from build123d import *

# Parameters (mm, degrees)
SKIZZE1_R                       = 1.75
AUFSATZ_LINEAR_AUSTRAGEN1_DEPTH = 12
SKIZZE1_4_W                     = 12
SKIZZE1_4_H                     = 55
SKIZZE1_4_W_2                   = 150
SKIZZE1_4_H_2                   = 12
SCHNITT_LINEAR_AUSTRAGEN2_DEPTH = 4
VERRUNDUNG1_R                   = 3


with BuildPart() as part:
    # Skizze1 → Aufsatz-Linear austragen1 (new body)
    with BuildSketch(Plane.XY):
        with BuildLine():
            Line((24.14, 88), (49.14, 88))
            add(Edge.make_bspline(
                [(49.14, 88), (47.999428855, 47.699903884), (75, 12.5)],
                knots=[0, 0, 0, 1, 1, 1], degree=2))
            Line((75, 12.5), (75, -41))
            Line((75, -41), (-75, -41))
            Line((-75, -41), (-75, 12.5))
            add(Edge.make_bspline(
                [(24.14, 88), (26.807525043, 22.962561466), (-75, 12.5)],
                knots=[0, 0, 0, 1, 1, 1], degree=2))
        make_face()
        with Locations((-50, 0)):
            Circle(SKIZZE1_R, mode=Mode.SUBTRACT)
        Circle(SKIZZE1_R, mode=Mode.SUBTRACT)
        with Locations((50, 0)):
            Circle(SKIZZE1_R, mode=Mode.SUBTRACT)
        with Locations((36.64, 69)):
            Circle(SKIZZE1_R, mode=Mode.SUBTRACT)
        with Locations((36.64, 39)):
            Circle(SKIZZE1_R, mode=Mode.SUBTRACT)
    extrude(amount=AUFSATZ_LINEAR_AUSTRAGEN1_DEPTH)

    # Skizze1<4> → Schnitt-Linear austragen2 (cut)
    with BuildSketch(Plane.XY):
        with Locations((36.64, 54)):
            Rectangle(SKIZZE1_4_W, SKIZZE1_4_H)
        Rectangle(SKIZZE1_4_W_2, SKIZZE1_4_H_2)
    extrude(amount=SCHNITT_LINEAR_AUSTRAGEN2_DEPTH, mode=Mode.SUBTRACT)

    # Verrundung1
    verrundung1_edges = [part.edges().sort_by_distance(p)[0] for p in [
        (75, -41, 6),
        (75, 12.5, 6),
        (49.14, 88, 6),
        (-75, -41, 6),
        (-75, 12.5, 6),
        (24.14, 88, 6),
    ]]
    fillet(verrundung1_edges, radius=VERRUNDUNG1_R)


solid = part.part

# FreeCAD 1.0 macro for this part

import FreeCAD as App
import Part
import Sketcher
from FreeCAD import Vector
Q = App.Units.Quantity


def edges_at(feature, points):
    """Names of the edges that pass closest to the given points."""
    edges = feature.Shape.Edges
    near = lambda p: min(range(len(edges)), key=lambda i: edges[i].distToShape(Part.Vertex(*p))[0])
    return sorted({f"Edge{near(p) + 1}" for p in points})

doc = App.newDocument("Part")
body = doc.addObject("PartDesign::Body", "Body")

# Sketch on XY plane
sketch1 = body.newObject("Sketcher::SketchObject", "Sketch")
sketch1.AttachmentSupport = (doc.getObject("XY_Plane"), [""])
sketch1.MapMode = "FlatFace"
sketch1.addGeometry(Part.LineSegment(Vector(49.14, 88, 0), Vector(24.14, 88, 0)), False)
sketch1.addGeometry(Part.BSplineCurve([Vector(24.14, 88, 0), Vector(26.807525, 22.962561, 0), Vector(-75, 12.5, 0)], [3, 3], [0, 1], False, 2, [1, 1, 1], False), False)
sketch1.addGeometry(Part.LineSegment(Vector(-75, 12.5, 0), Vector(-75, -41, 0)), False)
sketch1.addGeometry(Part.LineSegment(Vector(-75, -41, 0), Vector(75, -41, 0)), False)
sketch1.addGeometry(Part.LineSegment(Vector(75, -41, 0), Vector(75, 12.5, 0)), False)
sketch1.addGeometry(Part.BSplineCurve([Vector(49.14, 88, 0), Vector(47.999429, 47.699904, 0), Vector(75, 12.5, 0)], [3, 3], [0, 1], False, 2, [1, 1, 1], False), False)
sketch1.addGeometry(Part.Circle(Vector(50, 0, 0), Vector(0, 0, 1), 1.75), False)
sketch1.addGeometry(Part.Circle(Vector(0, 0, 0), Vector(0, 0, 1), 1.75), False)
sketch1.addGeometry(Part.Circle(Vector(-50, 0, 0), Vector(0, 0, 1), 1.75), False)
sketch1.addGeometry(Part.Circle(Vector(36.64, 39, 0), Vector(0, 0, 1), 1.75), False)
sketch1.addGeometry(Part.Circle(Vector(36.64, 69, 0), Vector(0, 0, 1), 1.75), False)
sketch1.addConstraint(Sketcher.Constraint("Block", 1))
sketch1.addConstraint(Sketcher.Constraint("Block", 5))
sketch1.addConstraint(Sketcher.Constraint("Coincident", 0, 2, 1, 1))
sketch1.addConstraint(Sketcher.Constraint("Coincident", 1, 2, 2, 1))
sketch1.addConstraint(Sketcher.Constraint("Coincident", 2, 2, 3, 1))
sketch1.addConstraint(Sketcher.Constraint("Coincident", 3, 2, 4, 1))
sketch1.addConstraint(Sketcher.Constraint("Coincident", 4, 2, 5, 2))
sketch1.addConstraint(Sketcher.Constraint("Coincident", 5, 1, 0, 1))
sketch1.addConstraint(Sketcher.Constraint("Vertical", 2))
sketch1.addConstraint(Sketcher.Constraint("Horizontal", 3))
sketch1.addConstraint(Sketcher.Constraint("Vertical", 4))
sketch1.addConstraint(Sketcher.Constraint("Coincident", 7, 3, -1, 1))
sketch1.addConstraint(Sketcher.Constraint("Equal", 6, 7))
sketch1.addConstraint(Sketcher.Constraint("Equal", 7, 8))
sketch1.addConstraint(Sketcher.Constraint("Equal", 8, 9))
sketch1.addConstraint(Sketcher.Constraint("Equal", 9, 10))
sketch1.addConstraint(Sketcher.Constraint("Symmetric", 6, 3, 8, 3, -1, 1))
sketch1.addConstraint(Sketcher.Constraint("PointOnObject", 6, 3, -1))
sketch1.addConstraint(Sketcher.Constraint("Vertical", 9, 3, 10, 3))
sketch1.addConstraint(Sketcher.Constraint("Diameter", 6, Q("3.5 mm")))
sketch1.addConstraint(Sketcher.Constraint("DistanceY", 2, 2, 2, 1, Q("53.5 mm")))
sketch1.addConstraint(Sketcher.Constraint("DistanceX", -1, 1, 6, 3, Q("50 mm")))
sketch1.addConstraint(Sketcher.Constraint("DistanceY", -1, 1, 9, 3, Q("39 mm")))
sketch1.addConstraint(Sketcher.Constraint("DistanceY", -1, 1, 10, 3, Q("69 mm")))
sketch1.addConstraint(Sketcher.Constraint("DistanceX", 0, 2, 10, 3, Q("12.5 mm")))
pad1 = body.newObject("PartDesign::Pad", "Pad")
pad1.Profile = sketch1
pad1.Length = 12

# Sketch on XY plane
sketch2 = body.newObject("Sketcher::SketchObject", "Sketch001")
sketch2.AttachmentSupport = (doc.getObject("XY_Plane"), [""])
sketch2.MapMode = "FlatFace"
sketch2.addGeometry(Part.LineSegment(Vector(31, 82, 0), Vector(31, 26, 0)), False)
sketch2.addGeometry(Part.LineSegment(Vector(31, 26, 0), Vector(43, 26, 0)), False)
sketch2.addGeometry(Part.LineSegment(Vector(43, 26, 0), Vector(43, 82, 0)), False)
sketch2.addGeometry(Part.LineSegment(Vector(43, 82, 0), Vector(31, 82, 0)), False)
sketch2.addGeometry(Part.LineSegment(Vector(-75, 6, 0), Vector(-75, -6, 0)), False)
sketch2.addGeometry(Part.LineSegment(Vector(-75, -6, 0), Vector(75, -6, 0)), False)
sketch2.addGeometry(Part.LineSegment(Vector(75, -6, 0), Vector(75, 6, 0)), False)
sketch2.addGeometry(Part.LineSegment(Vector(75, 6, 0), Vector(-75, 6, 0)), False)
sketch2.addConstraint(Sketcher.Constraint("Coincident", 0, 2, 1, 1))
sketch2.addConstraint(Sketcher.Constraint("Coincident", 1, 2, 2, 1))
sketch2.addConstraint(Sketcher.Constraint("Coincident", 2, 2, 3, 1))
sketch2.addConstraint(Sketcher.Constraint("Coincident", 3, 2, 0, 1))
sketch2.addConstraint(Sketcher.Constraint("Coincident", 4, 2, 5, 1))
sketch2.addConstraint(Sketcher.Constraint("Coincident", 5, 2, 6, 1))
sketch2.addConstraint(Sketcher.Constraint("Coincident", 6, 2, 7, 1))
sketch2.addConstraint(Sketcher.Constraint("Coincident", 7, 2, 4, 1))
sketch2.addConstraint(Sketcher.Constraint("Vertical", 0))
sketch2.addConstraint(Sketcher.Constraint("Horizontal", 1))
sketch2.addConstraint(Sketcher.Constraint("Vertical", 2))
sketch2.addConstraint(Sketcher.Constraint("Horizontal", 3))
sketch2.addConstraint(Sketcher.Constraint("Vertical", 4))
sketch2.addConstraint(Sketcher.Constraint("Horizontal", 5))
sketch2.addConstraint(Sketcher.Constraint("Vertical", 6))
sketch2.addConstraint(Sketcher.Constraint("Horizontal", 7))
sketch2.addConstraint(Sketcher.Constraint("Symmetric", 4, 2, 6, 2, -1, 1))
sketch2.addConstraint(Sketcher.Constraint("Equal", 3, 4))
sketch2.addConstraint(Sketcher.Constraint("DistanceX", 1, 1, 1, 2, Q("12 mm")))
sketch2.addConstraint(Sketcher.Constraint("DistanceX", 5, 1, 5, 2, Q("150 mm")))
sketch2.addConstraint(Sketcher.Constraint("DistanceY", 0, 2, 0, 1, Q("55 mm")))
sketch2.addConstraint(Sketcher.Constraint("DistanceY", -1, 1, 0, 2, Q("26.5 mm")))
sketch2.addConstraint(Sketcher.Constraint("DistanceX", -1, 1, 0, 2, Q("30.64 mm")))
pocket1 = body.newObject("PartDesign::Pocket", "Pocket")
pocket1.Profile = sketch2
pocket1.Length = 4
pocket1.Reversed = True
doc.recompute()

fillet = body.newObject("PartDesign::Fillet", "Fillet")
fillet.Base = (pocket1, edges_at(pocket1, [
    (75, -41, 6),
    (75, 12.5, 6),
    (49.14, 88, 6),
    (-75, -41, 6),
    (-75, 12.5, 6),
    (24.14, 88, 6),
]))
fillet.Radius = 3

doc.recompute()
